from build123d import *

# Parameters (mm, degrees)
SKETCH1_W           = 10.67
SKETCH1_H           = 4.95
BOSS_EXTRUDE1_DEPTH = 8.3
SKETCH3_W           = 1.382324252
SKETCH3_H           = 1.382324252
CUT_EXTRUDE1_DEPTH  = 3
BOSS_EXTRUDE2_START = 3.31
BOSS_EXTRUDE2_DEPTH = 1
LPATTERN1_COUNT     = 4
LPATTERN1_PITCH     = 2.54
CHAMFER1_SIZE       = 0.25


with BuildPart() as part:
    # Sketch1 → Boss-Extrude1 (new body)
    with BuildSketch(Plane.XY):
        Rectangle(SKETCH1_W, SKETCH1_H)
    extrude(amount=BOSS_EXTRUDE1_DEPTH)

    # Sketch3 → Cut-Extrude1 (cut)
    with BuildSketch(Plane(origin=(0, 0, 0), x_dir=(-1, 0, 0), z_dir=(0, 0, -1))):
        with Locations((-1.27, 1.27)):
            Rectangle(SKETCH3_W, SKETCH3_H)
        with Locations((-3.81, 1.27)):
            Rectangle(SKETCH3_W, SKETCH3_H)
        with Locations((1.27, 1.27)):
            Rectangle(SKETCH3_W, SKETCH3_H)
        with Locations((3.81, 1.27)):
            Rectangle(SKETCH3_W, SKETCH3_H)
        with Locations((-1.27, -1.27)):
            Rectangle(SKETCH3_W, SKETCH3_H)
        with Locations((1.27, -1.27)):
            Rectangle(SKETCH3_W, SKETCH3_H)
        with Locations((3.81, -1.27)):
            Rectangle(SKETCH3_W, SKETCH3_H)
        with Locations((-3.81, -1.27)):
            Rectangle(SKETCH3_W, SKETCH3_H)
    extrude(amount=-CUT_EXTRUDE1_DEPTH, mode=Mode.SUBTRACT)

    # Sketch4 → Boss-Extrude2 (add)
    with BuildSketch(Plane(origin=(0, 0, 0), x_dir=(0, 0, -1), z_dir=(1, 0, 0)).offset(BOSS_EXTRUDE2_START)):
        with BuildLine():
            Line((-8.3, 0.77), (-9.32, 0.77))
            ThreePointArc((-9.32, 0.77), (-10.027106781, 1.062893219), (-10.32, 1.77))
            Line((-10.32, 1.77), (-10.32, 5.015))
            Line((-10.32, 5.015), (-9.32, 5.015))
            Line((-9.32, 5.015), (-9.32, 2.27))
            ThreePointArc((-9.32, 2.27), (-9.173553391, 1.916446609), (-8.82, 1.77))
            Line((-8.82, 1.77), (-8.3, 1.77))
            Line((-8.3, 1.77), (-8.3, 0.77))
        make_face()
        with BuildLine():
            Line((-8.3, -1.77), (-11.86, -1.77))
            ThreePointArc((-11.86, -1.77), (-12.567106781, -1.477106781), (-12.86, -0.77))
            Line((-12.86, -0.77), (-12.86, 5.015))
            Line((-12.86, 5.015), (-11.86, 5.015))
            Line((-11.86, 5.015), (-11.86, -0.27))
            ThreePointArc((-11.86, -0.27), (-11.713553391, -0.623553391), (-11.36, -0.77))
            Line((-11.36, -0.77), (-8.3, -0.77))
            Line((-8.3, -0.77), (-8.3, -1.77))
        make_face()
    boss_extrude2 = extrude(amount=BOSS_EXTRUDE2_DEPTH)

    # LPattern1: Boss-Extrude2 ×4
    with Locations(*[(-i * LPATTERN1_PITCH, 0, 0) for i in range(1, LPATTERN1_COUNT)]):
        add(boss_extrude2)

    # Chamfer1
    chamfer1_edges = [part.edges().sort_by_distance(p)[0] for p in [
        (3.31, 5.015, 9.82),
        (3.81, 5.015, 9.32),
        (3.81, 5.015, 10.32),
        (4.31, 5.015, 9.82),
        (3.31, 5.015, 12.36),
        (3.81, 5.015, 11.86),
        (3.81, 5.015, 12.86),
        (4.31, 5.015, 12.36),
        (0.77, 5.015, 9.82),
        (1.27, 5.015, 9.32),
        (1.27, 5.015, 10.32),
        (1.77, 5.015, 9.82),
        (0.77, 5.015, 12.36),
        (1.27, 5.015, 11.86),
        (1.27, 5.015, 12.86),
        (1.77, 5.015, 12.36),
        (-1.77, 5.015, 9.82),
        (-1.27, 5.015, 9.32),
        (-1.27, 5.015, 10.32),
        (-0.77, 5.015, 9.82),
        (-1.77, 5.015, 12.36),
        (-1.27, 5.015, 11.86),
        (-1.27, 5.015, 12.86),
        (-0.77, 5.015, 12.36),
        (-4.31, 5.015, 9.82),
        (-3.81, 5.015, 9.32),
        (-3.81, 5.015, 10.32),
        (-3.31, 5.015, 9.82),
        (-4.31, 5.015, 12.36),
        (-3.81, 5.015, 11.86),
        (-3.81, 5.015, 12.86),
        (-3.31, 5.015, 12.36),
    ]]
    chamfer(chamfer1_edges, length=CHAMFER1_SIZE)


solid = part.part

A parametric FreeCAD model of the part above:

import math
import FreeCAD as App
import Part
import Sketcher
from FreeCAD import Vector
Q = App.Units.Quantity


def edges_at(feature, points):
    """Names of the edges that pass closest to the given points."""
    edges = feature.Shape.Edges
    near = lambda p: min(range(len(edges)), key=lambda i: edges[i].distToShape(Part.Vertex(*p))[0])
    return sorted({f"Edge{near(p) + 1}" for p in points})

doc = App.newDocument("Part")
body = doc.addObject("PartDesign::Body", "Body")

# Sketch on XY plane
sketch1 = body.newObject("Sketcher::SketchObject", "Sketch")
sketch1.AttachmentSupport = (doc.getObject("XY_Plane"), [""])
sketch1.MapMode = "FlatFace"
sketch1.addGeometry([
    Part.LineSegment(Vector(-5.3, 2.5, 0), Vector(-5.3, -2.5, 0)),
    Part.LineSegment(Vector(-5.3, -2.5, 0), Vector(5.3, -2.5, 0)),
    Part.LineSegment(Vector(5.3, -2.5, 0), Vector(5.3, 2.5, 0)),
    Part.LineSegment(Vector(5.3, 2.5, 0), Vector(-5.3, 2.5, 0)),
], False)
sketch1.addConstraint([
    Sketcher.Constraint("Coincident", 0, 2, 1, 1),
    Sketcher.Constraint("Coincident", 1, 2, 2, 1),
    Sketcher.Constraint("Coincident", 2, 2, 3, 1),
    Sketcher.Constraint("Coincident", 3, 2, 0, 1),
    Sketcher.Constraint("Vertical", 0),
    Sketcher.Constraint("Horizontal", 1),
    Sketcher.Constraint("Vertical", 2),
    Sketcher.Constraint("Horizontal", 3),
    Sketcher.Constraint("Symmetric", 0, 2, 2, 2, -1, 1),
    Sketcher.Constraint("DistanceX", 1, 1, 1, 2, Q("10.67 mm")),
    Sketcher.Constraint("DistanceY", 0, 2, 0, 1, Q("4.95 mm")),
])
pad1 = body.newObject("PartDesign::Pad", "Pad")
pad1.Profile = sketch1
pad1.Length = 8.3

# Sketch on XY plane
sketch2 = body.newObject("Sketcher::SketchObject", "Sketch001")
sketch2.AttachmentSupport = (doc.getObject("XY_Plane"), [""])
sketch2.MapMode = "FlatFace"
sketch2.addGeometry([
    Part.LineSegment(Vector(2, 2, 0), Vector(2, 0.6, 0)),  # 0
    Part.LineSegment(Vector(2, 0.6, 0), Vector(0.6, 0.6, 0)),  # 1
    Part.LineSegment(Vector(0.6, 0.6, 0), Vector(0.6, 2, 0)),  # 2
    Part.LineSegment(Vector(0.6, 2, 0), Vector(2, 2, 0)),  # 3
    Part.LineSegment(Vector(4.5, 2, 0), Vector(4.5, 0.6, 0)),  # 4
    Part.LineSegment(Vector(4.5, 0.6, 0), Vector(3.1, 0.6, 0)),  # 5
    Part.LineSegment(Vector(3.1, 0.6, 0), Vector(3.1, 2, 0)),  # 6
    Part.LineSegment(Vector(3.1, 2, 0), Vector(4.5, 2, 0)),  # 7
    Part.LineSegment(Vector(-0.6, 2, 0), Vector(-0.6, 0.6, 0)),  # 8
    Part.LineSegment(Vector(-0.6, 0.6, 0), Vector(-2, 0.6, 0)),  # 9
    Part.LineSegment(Vector(-2, 0.6, 0), Vector(-2, 2, 0)),  # 10
    Part.LineSegment(Vector(-2, 2, 0), Vector(-0.6, 2, 0)),  # 11
    Part.LineSegment(Vector(-3.1, 2, 0), Vector(-3.1, 0.6, 0)),  # 12
    Part.LineSegment(Vector(-3.1, 0.6, 0), Vector(-4.5, 0.6, 0)),  # 13
    Part.LineSegment(Vector(-4.5, 0.6, 0), Vector(-4.5, 2, 0)),  # 14
    Part.LineSegment(Vector(-4.5, 2, 0), Vector(-3.1, 2, 0)),  # 15
    Part.LineSegment(Vector(2, -0.6, 0), Vector(2, -2, 0)),  # 16
    Part.LineSegment(Vector(2, -2, 0), Vector(0.6, -2, 0)),  # 17
    Part.LineSegment(Vector(0.6, -2, 0), Vector(0.6, -0.6, 0)),  # 18
    Part.LineSegment(Vector(0.6, -0.6, 0), Vector(2, -0.6, 0)),  # 19
    Part.LineSegment(Vector(-0.6, -0.6, 0), Vector(-0.6, -2, 0)),  # 20
    Part.LineSegment(Vector(-0.6, -2, 0), Vector(-2, -2, 0)),  # 21
    Part.LineSegment(Vector(-2, -2, 0), Vector(-2, -0.6, 0)),  # 22
    Part.LineSegment(Vector(-2, -0.6, 0), Vector(-0.6, -0.6, 0)),  # 23
    Part.LineSegment(Vector(-3.1, -0.6, 0), Vector(-3.1, -2, 0)),  # 24
    Part.LineSegment(Vector(-3.1, -2, 0), Vector(-4.5, -2, 0)),  # 25
    Part.LineSegment(Vector(-4.5, -2, 0), Vector(-4.5, -0.6, 0)),  # 26
    Part.LineSegment(Vector(-4.5, -0.6, 0), Vector(-3.1, -0.6, 0)),  # 27
    Part.LineSegment(Vector(4.5, -0.6, 0), Vector(4.5, -2, 0)),  # 28
    Part.LineSegment(Vector(4.5, -2, 0), Vector(3.1, -2, 0)),  # 29
    Part.LineSegment(Vector(3.1, -2, 0), Vector(3.1, -0.6, 0)),  # 30
    Part.LineSegment(Vector(3.1, -0.6, 0), Vector(4.5, -0.6, 0)),  # 31
], False)
sketch2.addConstraint([
    Sketcher.Constraint("Coincident", 0, 2, 1, 1),
    Sketcher.Constraint("Coincident", 1, 2, 2, 1),
    Sketcher.Constraint("Coincident", 2, 2, 3, 1),
    Sketcher.Constraint("Coincident", 3, 2, 0, 1),
    Sketcher.Constraint("Coincident", 4, 2, 5, 1),
    Sketcher.Constraint("Coincident", 5, 2, 6, 1),
    Sketcher.Constraint("Coincident", 6, 2, 7, 1),
    Sketcher.Constraint("Coincident", 7, 2, 4, 1),
    Sketcher.Constraint("Coincident", 8, 2, 9, 1),
    Sketcher.Constraint("Coincident", 9, 2, 10, 1),
    Sketcher.Constraint("Coincident", 10, 2, 11, 1),
    Sketcher.Constraint("Coincident", 11, 2, 8, 1),
    Sketcher.Constraint("Coincident", 12, 2, 13, 1),
    Sketcher.Constraint("Coincident", 13, 2, 14, 1),
    Sketcher.Constraint("Coincident", 14, 2, 15, 1),
    Sketcher.Constraint("Coincident", 15, 2, 12, 1),
    Sketcher.Constraint("Coincident", 16, 2, 17, 1),
    Sketcher.Constraint("Coincident", 17, 2, 18, 1),
    Sketcher.Constraint("Coincident", 18, 2, 19, 1),
    Sketcher.Constraint("Coincident", 19, 2, 16, 1),
    Sketcher.Constraint("Coincident", 20, 2, 21, 1),
    Sketcher.Constraint("Coincident", 21, 2, 22, 1),
    Sketcher.Constraint("Coincident", 22, 2, 23, 1),
    Sketcher.Constraint("Coincident", 23, 2, 20, 1),
    Sketcher.Constraint("Coincident", 24, 2, 25, 1),
    Sketcher.Constraint("Coincident", 25, 2, 26, 1),
    Sketcher.Constraint("Coincident", 26, 2, 27, 1),
    Sketcher.Constraint("Coincident", 27, 2, 24, 1),
    Sketcher.Constraint("Coincident", 28, 2, 29, 1),
    Sketcher.Constraint("Coincident", 29, 2, 30, 1),
    Sketcher.Constraint("Coincident", 30, 2, 31, 1),
    Sketcher.Constraint("Coincident", 31, 2, 28, 1),
    Sketcher.Constraint("Vertical", 0),
    Sketcher.Constraint("Horizontal", 1),
    Sketcher.Constraint("Vertical", 2),
    Sketcher.Constraint("Horizontal", 3),
    Sketcher.Constraint("Vertical", 4),
    Sketcher.Constraint("Horizontal", 5),
    Sketcher.Constraint("Vertical", 6),
    Sketcher.Constraint("Horizontal", 7),
    Sketcher.Constraint("Vertical", 8),
    Sketcher.Constraint("Horizontal", 9),
    Sketcher.Constraint("Vertical", 10),
    Sketcher.Constraint("Horizontal", 11),
    Sketcher.Constraint("Vertical", 12),
    Sketcher.Constraint("Horizontal", 13),
    Sketcher.Constraint("Vertical", 14),
    Sketcher.Constraint("Horizontal", 15),
    Sketcher.Constraint("Vertical", 16),
    Sketcher.Constraint("Horizontal", 17),
    Sketcher.Constraint("Vertical", 18),
    Sketcher.Constraint("Horizontal", 19),
    Sketcher.Constraint("Vertical", 20),
    Sketcher.Constraint("Horizontal", 21),
    Sketcher.Constraint("Vertical", 22),
    Sketcher.Constraint("Horizontal", 23),
    Sketcher.Constraint("Vertical", 24),
    Sketcher.Constraint("Horizontal", 25),
    Sketcher.Constraint("Vertical", 26),
    Sketcher.Constraint("Horizontal", 27),
    Sketcher.Constraint("Vertical", 28),
    Sketcher.Constraint("Horizontal", 29),
    Sketcher.Constraint("Vertical", 30),
    Sketcher.Constraint("Horizontal", 31),
    Sketcher.Constraint("Symmetric", 10, 2, 16, 2, -1, 1),
    Sketcher.Constraint("Symmetric", 8, 2, 18, 2, -1, 1),
    Sketcher.Constraint("Symmetric", 2, 2, 20, 2, -1, 1),
    Sketcher.Constraint("Symmetric", 0, 2, 22, 2, -1, 1),
    Sketcher.Constraint("Symmetric", 6, 2, 24, 2, -1, 1),
    Sketcher.Constraint("Symmetric", 4, 2, 26, 2, -1, 1),
    Sketcher.Constraint("Symmetric", 14, 2, 28, 2, -1, 1),
    Sketcher.Constraint("Symmetric", 12, 2, 30, 2, -1, 1),
    Sketcher.Constraint("Symmetric", 1, 2, 8, 2, -2),
    Sketcher.Constraint("Symmetric", 3, 2, 10, 2, -2),
    Sketcher.Constraint("Symmetric", 5, 2, 12, 2, -2),
    Sketcher.Constraint("Symmetric", 7, 2, 14, 2, -2),
    Sketcher.Constraint("Horizontal", 1, 2, 4, 2),
    Sketcher.Constraint("Horizontal", 3, 2, 6, 2),
    Sketcher.Constraint("Equal", 3, 5),
    Sketcher.Constraint("Equal", 31, 0),
    Sketcher.Constraint("DistanceX", 0, 2, 4, 2, Q("2.54 mm")),
    Sketcher.Constraint("DistanceX", 8, 2, 0, 2, Q("2.54 mm")),
    Sketcher.Constraint("DistanceY", 16, 2, 0, 2, Q("2.54 mm")),
    Sketcher.Constraint("DistanceX", 1, 2, 1, 1, Q("1.382324 mm")),
])
pocket1 = body.newObject("PartDesign::Pocket", "Pocket")
pocket1.Profile = sketch2
pocket1.Length = 3
pocket1.Reversed = True

# Sketch on YZ plane
sketch3 = body.newObject("Sketcher::SketchObject", "Sketch002")
sketch3.AttachmentSupport = (doc.getObject("YZ_Plane"), [""])
sketch3.MapMode = "FlatFace"
sketch3.AttachmentOffset = App.Placement(Vector(0, 0, 3.31), App.Rotation())
sketch3.addGeometry([
    Part.LineSegment(Vector(0.77, 9.32, 0), Vector(0.77, 8.3, 0)),  # 0
    Part.LineSegment(Vector(0.77, 8.3, 0), Vector(1.77, 8.3, 0)),  # 1
    Part.LineSegment(Vector(1.77, 8.3, 0), Vector(1.77, 8.82, 0)),  # 2
    Part.ArcOfCircle(Part.Circle(Vector(2.27, 8.82, 0), Vector(0, 0, 1), 0.5), math.radians(90), math.radians(180)),  # 3
    Part.LineSegment(Vector(2.27, 9.32, 0), Vector(5.01, 9.32, 0)),  # 4
    Part.LineSegment(Vector(5.01, 9.32, 0), Vector(5.01, 10.32, 0)),  # 5
    Part.LineSegment(Vector(5.01, 10.32, 0), Vector(1.77, 10.32, 0)),  # 6
    Part.ArcOfCircle(Part.Circle(Vector(1.77, 9.32, 0), Vector(0, 0, 1), 1), math.radians(90), math.radians(180)),  # 7
    Part.LineSegment(Vector(-1.77, 11.86, 0), Vector(-1.77, 8.3, 0)),  # 8
    Part.LineSegment(Vector(-1.77, 8.3, 0), Vector(-0.77, 8.3, 0)),  # 9
    Part.LineSegment(Vector(-0.77, 8.3, 0), Vector(-0.77, 11.36, 0)),  # 10
    Part.ArcOfCircle(Part.Circle(Vector(-0.27, 11.36, 0), Vector(0, 0, 1), 0.5), math.radians(90), math.radians(180)),  # 11
    Part.LineSegment(Vector(-0.27, 11.86, 0), Vector(5.01, 11.86, 0)),  # 12
    Part.LineSegment(Vector(5.01, 11.86, 0), Vector(5.01, 12.86, 0)),  # 13
    Part.LineSegment(Vector(5.01, 12.86, 0), Vector(-0.77, 12.86, 0)),  # 14
    Part.ArcOfCircle(Part.Circle(Vector(-0.77, 11.86, 0), Vector(0, 0, 1), 1), math.radians(90), math.radians(180)),  # 15
], False)
sketch3.addConstraint([
    Sketcher.Constraint("Coincident", 0, 2, 1, 1),
    Sketcher.Constraint("Coincident", 1, 2, 2, 1),
    Sketcher.Constraint("Tangent", 2, 2, 3, 2),
    Sketcher.Constraint("Tangent", 3, 1, 4, 1),
    Sketcher.Constraint("Coincident", 4, 2, 5, 1),
    Sketcher.Constraint("Coincident", 5, 2, 6, 1),
    Sketcher.Constraint("Tangent", 6, 2, 7, 1),
    Sketcher.Constraint("Tangent", 7, 2, 0, 1),
    Sketcher.Constraint("Coincident", 8, 2, 9, 1),
    Sketcher.Constraint("Coincident", 9, 2, 10, 1),
    Sketcher.Constraint("Tangent", 10, 2, 11, 2),
    Sketcher.Constraint("Tangent", 11, 1, 12, 1),
    Sketcher.Constraint("Coincident", 12, 2, 13, 1),
    Sketcher.Constraint("Coincident", 13, 2, 14, 1),
    Sketcher.Constraint("Tangent", 14, 2, 15, 1),
    Sketcher.Constraint("Tangent", 15, 2, 8, 1),
    Sketcher.Constraint("Vertical", 0),
    Sketcher.Constraint("Horizontal", 1),
    Sketcher.Constraint("Vertical", 2),
    Sketcher.Constraint("Horizontal", 4),
    Sketcher.Constraint("Vertical", 5),
    Sketcher.Constraint("Horizontal", 6),
    Sketcher.Constraint("Vertical", 8),
    Sketcher.Constraint("Horizontal", 9),
    Sketcher.Constraint("Vertical", 10),
    Sketcher.Constraint("Horizontal", 12),
    Sketcher.Constraint("Vertical", 13),
    Sketcher.Constraint("Horizontal", 14),
    Sketcher.Constraint("Equal", 3, 11),
    Sketcher.Constraint("Equal", 7, 15),
    Sketcher.Constraint("Symmetric", 1, 2, 8, 2, -2),
    Sketcher.Constraint("Horizontal", 7, 3, 3, 1),
    Sketcher.Constraint("Horizontal", 15, 3, 11, 1),
    Sketcher.Constraint("Vertical", 7, 3, 1, 2),
    Sketcher.Constraint("Vertical", 15, 3, 9, 2),
    Sketcher.Constraint("Vertical", 5, 2, 12, 2),
    Sketcher.Constraint("Radius", 7, Q("1 mm")),
    Sketcher.Constraint("Radius", 3, Q("0.5 mm")),
    Sketcher.Constraint("DistanceY", 0, 2, 0, 1, Q("1.02 mm")),
    Sketcher.Constraint("DistanceY", 8, 2, 8, 1, Q("3.56 mm")),
    Sketcher.Constraint("DistanceY", -1, 1, 0, 2, Q("8.3 mm")),
    Sketcher.Constraint("DistanceX", 4, 1, 4, 2, Q("2.745 mm")),
    Sketcher.Constraint("DistanceX", 12, 1, 12, 2, Q("5.285 mm")),
])
pad2 = body.newObject("PartDesign::Pad", "Pad001")
pad2.Profile = sketch3
pad2.Length = 1
doc.recompute()

linearpattern = body.newObject("PartDesign::LinearPattern", "LinearPattern")
linearpattern.Originals = [pad2]
linearpattern.Direction = (doc.getObject("X_Axis"), [""])
linearpattern.Mode = "offset"
linearpattern.Offset = 2.54
linearpattern.Occurrences = 4
linearpattern.Reversed = True
body.Tip = linearpattern
doc.recompute()

chamfer = body.newObject("PartDesign::Chamfer", "Chamfer")
chamfer.Base = (linearpattern, edges_at(linearpattern, [
    (3.31, 5.015, 9.82),
    (3.81, 5.015, 9.32),
    (3.81, 5.015, 10.32),
    (4.31, 5.015, 9.82),
    (3.31, 5.015, 12.36),
    (3.81, 5.015, 11.86),
    (3.81, 5.015, 12.86),
    (4.31, 5.015, 12.36),
    (0.77, 5.015, 9.82),
    (1.27, 5.015, 9.32),
    (1.27, 5.015, 10.32),
    (1.77, 5.015, 9.82),
    (0.77, 5.015, 12.36),
    (1.27, 5.015, 11.86),
    (1.27, 5.015, 12.86),
    (1.77, 5.015, 12.36),
    (-1.77, 5.015, 9.82),
    (-1.27, 5.015, 9.32),
    (-1.27, 5.015, 10.32),
    (-0.77, 5.015, 9.82),
    (-1.77, 5.015, 12.36),
    (-1.27, 5.015, 11.86),
    (-1.27, 5.015, 12.86),
    (-0.77, 5.015, 12.36),
    (-4.31, 5.015, 9.82),
    (-3.81, 5.015, 9.32),
    (-3.81, 5.015, 10.32),
    (-3.31, 5.015, 9.82),
    (-4.31, 5.015, 12.36),
    (-3.81, 5.015, 11.86),
    (-3.81, 5.015, 12.86),
    (-3.31, 5.015, 12.36),
]))
chamfer.Size = 0.25

doc.recompute()
